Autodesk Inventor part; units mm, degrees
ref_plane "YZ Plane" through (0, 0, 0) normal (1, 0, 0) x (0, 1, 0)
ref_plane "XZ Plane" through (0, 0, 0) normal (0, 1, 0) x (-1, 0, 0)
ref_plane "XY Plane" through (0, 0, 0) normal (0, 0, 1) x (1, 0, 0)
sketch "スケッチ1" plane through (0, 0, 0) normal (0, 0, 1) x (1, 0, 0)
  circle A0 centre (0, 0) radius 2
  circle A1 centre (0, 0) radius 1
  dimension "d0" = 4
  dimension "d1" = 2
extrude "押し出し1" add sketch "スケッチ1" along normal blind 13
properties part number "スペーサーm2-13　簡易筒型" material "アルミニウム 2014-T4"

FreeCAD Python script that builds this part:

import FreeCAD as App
import Part
import Sketcher

V = App.Vector
Q = App.Units.Quantity

doc = App.newDocument("Part")
body = doc.addObject("PartDesign::Body", "Body")

sketch1 = doc.addObject("Sketcher::SketchObject", "Sketch")
body.addObject(sketch1)
sketch1.AttachmentSupport = (doc.XY_Plane, [""])
sketch1.MapMode = "FlatFace"
sketch1.addGeometry([
    Part.Circle(V(0, 0, 0), V(0, 0, 1), 2),
    Part.Circle(V(0, 0, 0), V(0, 0, 1), 1),
], False)
sketch1.addConstraint([
    Sketcher.Constraint("Coincident", 0, 3, -1, 1),
    Sketcher.Constraint("Coincident", 1, 3, -1, 1),
    Sketcher.Constraint("Diameter", 0, Q("4 mm")),
    Sketcher.Constraint("Diameter", 1, Q("2 mm")),
])
pad1 = doc.addObject("PartDesign::Pad", "Pad")
body.addObject(pad1)
pad1.Profile = sketch1
pad1.Length = 13

doc.recompute()
